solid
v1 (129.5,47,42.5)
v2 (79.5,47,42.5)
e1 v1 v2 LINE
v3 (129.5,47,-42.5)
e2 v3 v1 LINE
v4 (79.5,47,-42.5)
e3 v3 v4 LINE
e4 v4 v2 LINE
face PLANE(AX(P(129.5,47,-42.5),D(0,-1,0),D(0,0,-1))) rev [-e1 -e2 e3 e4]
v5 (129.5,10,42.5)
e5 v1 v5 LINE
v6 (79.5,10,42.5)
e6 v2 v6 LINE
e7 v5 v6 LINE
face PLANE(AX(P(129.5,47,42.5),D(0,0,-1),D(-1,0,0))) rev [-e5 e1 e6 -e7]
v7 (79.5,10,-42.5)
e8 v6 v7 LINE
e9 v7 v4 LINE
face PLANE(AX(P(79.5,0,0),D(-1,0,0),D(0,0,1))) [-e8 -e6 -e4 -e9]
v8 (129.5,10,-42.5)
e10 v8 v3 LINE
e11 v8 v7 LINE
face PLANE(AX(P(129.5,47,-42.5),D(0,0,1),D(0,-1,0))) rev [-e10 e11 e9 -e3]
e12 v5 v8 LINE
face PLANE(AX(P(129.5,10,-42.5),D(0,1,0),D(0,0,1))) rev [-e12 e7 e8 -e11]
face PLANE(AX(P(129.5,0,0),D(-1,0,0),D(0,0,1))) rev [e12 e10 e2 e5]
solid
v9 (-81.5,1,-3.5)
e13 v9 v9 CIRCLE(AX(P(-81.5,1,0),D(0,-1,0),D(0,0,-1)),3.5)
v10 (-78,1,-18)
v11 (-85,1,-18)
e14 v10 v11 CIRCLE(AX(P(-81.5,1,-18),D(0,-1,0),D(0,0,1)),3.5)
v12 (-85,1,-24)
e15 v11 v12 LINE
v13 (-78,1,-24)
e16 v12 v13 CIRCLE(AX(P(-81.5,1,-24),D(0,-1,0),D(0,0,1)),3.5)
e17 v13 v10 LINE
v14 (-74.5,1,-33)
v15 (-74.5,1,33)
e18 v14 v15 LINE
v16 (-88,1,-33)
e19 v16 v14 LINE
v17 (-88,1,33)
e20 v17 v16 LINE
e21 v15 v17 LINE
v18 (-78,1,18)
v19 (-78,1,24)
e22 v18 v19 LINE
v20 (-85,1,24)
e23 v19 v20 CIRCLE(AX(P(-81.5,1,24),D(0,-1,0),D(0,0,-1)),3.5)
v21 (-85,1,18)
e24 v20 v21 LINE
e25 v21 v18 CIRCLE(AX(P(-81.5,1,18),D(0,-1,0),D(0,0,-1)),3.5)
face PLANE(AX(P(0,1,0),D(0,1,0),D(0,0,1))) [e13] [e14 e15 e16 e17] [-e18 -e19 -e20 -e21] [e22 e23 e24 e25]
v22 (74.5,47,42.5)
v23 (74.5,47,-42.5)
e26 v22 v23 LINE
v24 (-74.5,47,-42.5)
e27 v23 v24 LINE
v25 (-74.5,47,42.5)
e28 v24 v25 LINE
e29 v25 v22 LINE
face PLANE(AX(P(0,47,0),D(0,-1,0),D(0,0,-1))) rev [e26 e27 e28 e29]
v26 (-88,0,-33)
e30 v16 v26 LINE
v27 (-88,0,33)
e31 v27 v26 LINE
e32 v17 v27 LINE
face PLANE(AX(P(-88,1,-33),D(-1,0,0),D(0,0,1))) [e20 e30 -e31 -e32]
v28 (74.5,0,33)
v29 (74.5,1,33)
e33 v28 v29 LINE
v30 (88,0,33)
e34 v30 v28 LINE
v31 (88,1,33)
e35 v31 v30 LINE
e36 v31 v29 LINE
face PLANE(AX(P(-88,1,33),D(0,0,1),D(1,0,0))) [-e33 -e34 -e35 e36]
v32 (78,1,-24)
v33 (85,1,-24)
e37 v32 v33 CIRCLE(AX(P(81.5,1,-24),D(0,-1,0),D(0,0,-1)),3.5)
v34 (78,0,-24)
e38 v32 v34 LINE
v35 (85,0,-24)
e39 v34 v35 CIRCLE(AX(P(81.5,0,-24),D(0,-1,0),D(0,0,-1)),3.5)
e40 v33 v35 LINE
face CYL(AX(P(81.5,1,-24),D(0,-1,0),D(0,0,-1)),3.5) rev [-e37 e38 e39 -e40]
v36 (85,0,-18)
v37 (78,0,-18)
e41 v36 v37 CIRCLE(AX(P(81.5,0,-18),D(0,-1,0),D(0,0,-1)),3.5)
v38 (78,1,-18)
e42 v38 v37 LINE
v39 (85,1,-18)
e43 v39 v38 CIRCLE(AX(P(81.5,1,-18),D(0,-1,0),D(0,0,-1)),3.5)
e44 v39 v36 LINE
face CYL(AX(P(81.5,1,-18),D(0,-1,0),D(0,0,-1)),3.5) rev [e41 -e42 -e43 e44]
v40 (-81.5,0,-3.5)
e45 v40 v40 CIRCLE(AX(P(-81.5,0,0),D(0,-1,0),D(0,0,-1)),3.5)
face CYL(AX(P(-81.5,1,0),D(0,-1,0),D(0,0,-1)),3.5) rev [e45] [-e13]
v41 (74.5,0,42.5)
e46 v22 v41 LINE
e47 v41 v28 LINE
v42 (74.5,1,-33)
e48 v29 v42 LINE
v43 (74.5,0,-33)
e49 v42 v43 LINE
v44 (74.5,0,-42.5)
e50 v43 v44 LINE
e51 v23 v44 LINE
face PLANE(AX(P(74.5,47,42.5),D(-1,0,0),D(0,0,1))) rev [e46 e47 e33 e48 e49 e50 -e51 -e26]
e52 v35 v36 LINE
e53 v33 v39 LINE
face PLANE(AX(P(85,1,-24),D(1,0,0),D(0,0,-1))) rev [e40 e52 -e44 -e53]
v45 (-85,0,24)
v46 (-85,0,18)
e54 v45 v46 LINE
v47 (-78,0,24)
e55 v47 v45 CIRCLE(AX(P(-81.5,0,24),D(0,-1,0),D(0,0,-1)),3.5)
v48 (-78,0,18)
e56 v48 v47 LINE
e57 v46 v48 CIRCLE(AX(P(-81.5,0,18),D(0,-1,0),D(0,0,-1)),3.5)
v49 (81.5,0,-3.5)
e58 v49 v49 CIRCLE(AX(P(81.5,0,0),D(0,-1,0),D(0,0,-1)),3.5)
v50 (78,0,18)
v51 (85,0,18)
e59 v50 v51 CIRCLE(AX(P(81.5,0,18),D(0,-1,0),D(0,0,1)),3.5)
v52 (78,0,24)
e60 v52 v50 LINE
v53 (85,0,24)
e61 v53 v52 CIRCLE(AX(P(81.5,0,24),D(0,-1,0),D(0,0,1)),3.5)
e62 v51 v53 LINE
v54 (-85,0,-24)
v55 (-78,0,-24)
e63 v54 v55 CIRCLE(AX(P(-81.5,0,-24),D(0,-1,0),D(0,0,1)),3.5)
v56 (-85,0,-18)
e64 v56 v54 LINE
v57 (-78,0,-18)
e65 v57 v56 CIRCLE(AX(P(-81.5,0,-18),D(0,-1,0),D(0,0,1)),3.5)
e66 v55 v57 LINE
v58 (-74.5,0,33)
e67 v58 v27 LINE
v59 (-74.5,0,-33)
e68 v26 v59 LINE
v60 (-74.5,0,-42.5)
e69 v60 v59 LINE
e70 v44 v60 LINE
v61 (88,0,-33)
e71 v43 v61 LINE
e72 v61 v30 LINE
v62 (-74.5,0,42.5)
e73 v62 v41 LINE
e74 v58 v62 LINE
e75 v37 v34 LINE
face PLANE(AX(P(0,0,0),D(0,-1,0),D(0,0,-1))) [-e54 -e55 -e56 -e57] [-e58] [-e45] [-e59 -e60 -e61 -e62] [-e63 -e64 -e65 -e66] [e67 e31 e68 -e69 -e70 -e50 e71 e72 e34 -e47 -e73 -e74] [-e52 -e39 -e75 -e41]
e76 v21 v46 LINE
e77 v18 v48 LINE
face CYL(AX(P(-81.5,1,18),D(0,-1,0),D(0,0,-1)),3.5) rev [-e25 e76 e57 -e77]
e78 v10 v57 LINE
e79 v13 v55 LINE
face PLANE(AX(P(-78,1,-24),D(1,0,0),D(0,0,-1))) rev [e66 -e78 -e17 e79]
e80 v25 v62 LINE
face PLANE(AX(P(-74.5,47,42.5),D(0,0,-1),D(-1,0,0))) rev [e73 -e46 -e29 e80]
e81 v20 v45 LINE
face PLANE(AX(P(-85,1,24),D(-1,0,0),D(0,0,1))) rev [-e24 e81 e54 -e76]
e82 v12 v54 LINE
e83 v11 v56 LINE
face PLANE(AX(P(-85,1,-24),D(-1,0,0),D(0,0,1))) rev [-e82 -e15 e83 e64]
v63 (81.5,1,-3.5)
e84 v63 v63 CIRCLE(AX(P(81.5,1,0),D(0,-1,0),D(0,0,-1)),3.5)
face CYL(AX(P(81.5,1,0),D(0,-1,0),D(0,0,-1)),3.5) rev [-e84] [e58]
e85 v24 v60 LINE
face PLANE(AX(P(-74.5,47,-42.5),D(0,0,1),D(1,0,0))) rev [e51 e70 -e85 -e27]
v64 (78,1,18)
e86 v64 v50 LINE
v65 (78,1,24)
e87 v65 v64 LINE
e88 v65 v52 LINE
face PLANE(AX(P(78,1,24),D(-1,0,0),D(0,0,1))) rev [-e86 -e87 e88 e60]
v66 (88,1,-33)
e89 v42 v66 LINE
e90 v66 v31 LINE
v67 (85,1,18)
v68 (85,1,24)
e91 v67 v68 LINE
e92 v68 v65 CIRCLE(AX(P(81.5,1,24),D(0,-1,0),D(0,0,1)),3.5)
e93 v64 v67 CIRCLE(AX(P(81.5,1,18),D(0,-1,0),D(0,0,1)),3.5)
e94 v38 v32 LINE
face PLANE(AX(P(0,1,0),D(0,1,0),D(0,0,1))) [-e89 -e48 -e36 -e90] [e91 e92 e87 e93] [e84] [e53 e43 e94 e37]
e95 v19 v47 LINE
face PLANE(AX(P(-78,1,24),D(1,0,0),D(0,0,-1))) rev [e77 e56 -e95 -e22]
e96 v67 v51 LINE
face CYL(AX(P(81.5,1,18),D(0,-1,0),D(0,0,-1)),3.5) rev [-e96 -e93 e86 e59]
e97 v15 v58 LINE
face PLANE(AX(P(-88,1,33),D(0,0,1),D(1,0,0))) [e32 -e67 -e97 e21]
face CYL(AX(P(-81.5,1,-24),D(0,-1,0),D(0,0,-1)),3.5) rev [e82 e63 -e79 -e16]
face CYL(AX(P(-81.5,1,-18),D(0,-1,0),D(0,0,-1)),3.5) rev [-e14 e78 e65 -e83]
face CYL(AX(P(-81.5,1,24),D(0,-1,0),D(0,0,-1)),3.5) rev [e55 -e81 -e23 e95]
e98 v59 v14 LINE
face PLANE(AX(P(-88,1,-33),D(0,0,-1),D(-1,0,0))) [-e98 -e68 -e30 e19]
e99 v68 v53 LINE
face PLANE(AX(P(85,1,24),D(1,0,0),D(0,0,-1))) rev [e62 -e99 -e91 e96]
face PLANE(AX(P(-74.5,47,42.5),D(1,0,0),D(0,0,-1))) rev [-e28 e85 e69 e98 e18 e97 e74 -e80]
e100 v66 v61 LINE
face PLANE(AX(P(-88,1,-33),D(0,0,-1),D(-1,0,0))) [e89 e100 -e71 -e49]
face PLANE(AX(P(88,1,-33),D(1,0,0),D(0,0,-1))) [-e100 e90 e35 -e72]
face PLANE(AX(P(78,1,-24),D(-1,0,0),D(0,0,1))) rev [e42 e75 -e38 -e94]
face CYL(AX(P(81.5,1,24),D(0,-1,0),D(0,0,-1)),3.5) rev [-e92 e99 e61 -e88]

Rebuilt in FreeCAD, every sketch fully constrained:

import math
import FreeCAD as App
import Part
import Sketcher
Q = App.Units.Quantity


def add_polygon(sketch, points):
    """Adds a closed chain of lines whose ends are joined by coincident constraints."""
    first, n = sketch.GeometryCount, len(points)
    for a, b in zip(points, points[1:] + points[:1]):
        sketch.addGeometry(Part.LineSegment(App.Vector(*a, 0), App.Vector(*b, 0)), False)
    for i in range(n):
        sketch.addConstraint(Sketcher.Constraint("Coincident", first + i, 2, first + (i + 1) % n, 1))

doc = App.newDocument("Part")
body = doc.addObject("PartDesign::Body", "Body")

sketch1 = body.newObject("Sketcher::SketchObject", "Sketch")
sketch1.AttachmentSupport = (doc.getObject("XZ_Plane"), [""])
sketch1.MapMode = "FlatFace"
add_polygon(sketch1, [(-74, -42), (-74, 42), (74, 42), (74, -42)])
sketch1.addConstraint([
    Sketcher.Constraint("Vertical", 0),
    Sketcher.Constraint("Horizontal", 1),
    Sketcher.Constraint("Vertical", 2),
    Sketcher.Constraint("Horizontal", 3),
    Sketcher.Constraint("Symmetric", 0, 2, 2, 2, -1, 1),
    Sketcher.Constraint("DistanceX", 1, 1, 1, 2, Q("149 mm")),
    Sketcher.Constraint("DistanceY", 0, 1, 0, 2, Q("85 mm")),
])
pad1 = body.newObject("PartDesign::Pad", "Pad")
pad1.Profile = sketch1
pad1.Length = 47
pad1.Reversed = True

sketch2 = body.newObject("Sketcher::SketchObject", "Sketch001")
sketch2.AttachmentSupport = (doc.getObject("XZ_Plane"), [""])
sketch2.MapMode = "FlatFace"
add_polygon(sketch2, [(-88, 33), (-88, -33), (88, -33), (88, 33)])
sketch2.addGeometry(Part.LineSegment(App.Vector(-78, -18, 0), App.Vector(-78, -24, 0)), False)
sketch2.addGeometry(Part.ArcOfCircle(Part.Circle(App.Vector(-81.5, -24, 0), App.Vector(0, 0, 1), 3.5), math.radians(180), math.radians(360)), False)
sketch2.addGeometry(Part.LineSegment(App.Vector(-85, -24, 0), App.Vector(-85, -18, 0)), False)
sketch2.addGeometry(Part.ArcOfCircle(Part.Circle(App.Vector(-81.5, -18, 0), App.Vector(0, 0, 1), 3.5), math.radians(0), math.radians(180)), False)
sketch2.addGeometry(Part.ArcOfCircle(Part.Circle(App.Vector(81.5, -24, 0), App.Vector(0, 0, 1), 3.5), math.radians(180), math.radians(360)), False)
sketch2.addGeometry(Part.LineSegment(App.Vector(78, -24, 0), App.Vector(78, -18, 0)), False)
sketch2.addGeometry(Part.ArcOfCircle(Part.Circle(App.Vector(81.5, -18, 0), App.Vector(0, 0, 1), 3.5), math.radians(0), math.radians(180)), False)
sketch2.addGeometry(Part.LineSegment(App.Vector(85, -18, 0), App.Vector(85, -24, 0)), False)
sketch2.addGeometry(Part.Circle(App.Vector(-81.5, 0, 0), App.Vector(0, 0, 1), 3.5), False)
sketch2.addGeometry(Part.ArcOfCircle(Part.Circle(App.Vector(-81.5, 24, 0), App.Vector(0, 0, 1), 3.5), math.radians(0), math.radians(180)), False)
sketch2.addGeometry(Part.LineSegment(App.Vector(-78, 24, 0), App.Vector(-78, 18, 0)), False)
sketch2.addGeometry(Part.ArcOfCircle(Part.Circle(App.Vector(-81.5, 18, 0), App.Vector(0, 0, 1), 3.5), math.radians(180), math.radians(360)), False)
sketch2.addGeometry(Part.LineSegment(App.Vector(-85, 18, 0), App.Vector(-85, 24, 0)), False)
sketch2.addGeometry(Part.Circle(App.Vector(81.5, 0, 0), App.Vector(0, 0, 1), 3.5), False)
sketch2.addGeometry(Part.LineSegment(App.Vector(78, 18, 0), App.Vector(78, 24, 0)), False)
sketch2.addGeometry(Part.ArcOfCircle(Part.Circle(App.Vector(81.5, 24, 0), App.Vector(0, 0, 1), 3.5), math.radians(0), math.radians(180)), False)
sketch2.addGeometry(Part.LineSegment(App.Vector(85, 24, 0), App.Vector(85, 18, 0)), False)
sketch2.addGeometry(Part.ArcOfCircle(Part.Circle(App.Vector(81.5, 18, 0), App.Vector(0, 0, 1), 3.5), math.radians(180), math.radians(360)), False)
sketch2.addConstraint([
    Sketcher.Constraint("Tangent", 4, 2, 5, 2),
    Sketcher.Constraint("Tangent", 5, 1, 6, 1),
    Sketcher.Constraint("Tangent", 6, 2, 7, 2),
    Sketcher.Constraint("Tangent", 7, 1, 4, 1),
    Sketcher.Constraint("Tangent", 8, 1, 9, 1),
    Sketcher.Constraint("Tangent", 9, 2, 10, 2),
    Sketcher.Constraint("Tangent", 10, 1, 11, 1),
    Sketcher.Constraint("Tangent", 11, 2, 8, 2),
    Sketcher.Constraint("Tangent", 13, 1, 14, 1),
    Sketcher.Constraint("Tangent", 14, 2, 15, 2),
    Sketcher.Constraint("Tangent", 15, 1, 16, 1),
    Sketcher.Constraint("Tangent", 16, 2, 13, 2),
    Sketcher.Constraint("Tangent", 18, 2, 19, 2),
    Sketcher.Constraint("Tangent", 19, 1, 20, 1),
    Sketcher.Constraint("Tangent", 20, 2, 21, 2),
    Sketcher.Constraint("Tangent", 21, 1, 18, 1),
    Sketcher.Constraint("Vertical", 0),
    Sketcher.Constraint("Horizontal", 1),
    Sketcher.Constraint("Vertical", 2),
    Sketcher.Constraint("Horizontal", 3),
    Sketcher.Constraint("Vertical", 4),
    Sketcher.Constraint("Vertical", 6),
    Sketcher.Constraint("Vertical", 9),
    Sketcher.Constraint("Vertical", 11),
    Sketcher.Constraint("Vertical", 14),
    Sketcher.Constraint("Vertical", 16),
    Sketcher.Constraint("Vertical", 18),
    Sketcher.Constraint("Vertical", 20),
    Sketcher.Constraint("Equal", 7, 8),
    Sketcher.Constraint("Equal", 10, 12),
    Sketcher.Constraint("Equal", 12, 13),
    Sketcher.Constraint("Equal", 15, 17),
    Sketcher.Constraint("Equal", 17, 19),
    Sketcher.Constraint("Symmetric", 8, 3, 13, 3, -1, 1),
    Sketcher.Constraint("Symmetric", 12, 3, 17, 3, -1, 1),
    Sketcher.Constraint("Symmetric", 5, 3, 19, 3, -1, 1),
    Sketcher.Constraint("Symmetric", 0, 2, 2, 2, -1, 1),
    Sketcher.Constraint("Symmetric", 5, 3, 8, 3, -2),
    Sketcher.Constraint("PointOnObject", 12, 3, -1),
    Sketcher.Constraint("Horizontal", 7, 3, 10, 3),
    Sketcher.Constraint("Horizontal", 15, 3, 21, 3),
    Sketcher.Constraint("Vertical", 7, 3, 12, 3),
    Sketcher.Constraint("Equal", 11, 14),
    Sketcher.Constraint("Diameter", 12, Q("7 mm")),
    Sketcher.Constraint("DistanceX", 1, 1, 1, 2, Q("176 mm")),
    Sketcher.Constraint("DistanceY", 0, 2, 0, 1, Q("66 mm")),
    Sketcher.Constraint("DistanceY", 4, 2, 4, 1, Q("6 mm")),
    Sketcher.Constraint("DistanceY", 5, 3, -1, 1, Q("24 mm")),
    Sketcher.Constraint("DistanceX", 4, 2, -1, 1, Q("78 mm")),
])
pad2 = body.newObject("PartDesign::Pad", "Pad001")
pad2.Profile = sketch2
pad2.Length = 1
pad2.Reversed = True
body2 = doc.addObject("PartDesign::Body", "Body001")

sketch3 = body2.newObject("Sketcher::SketchObject", "Sketch002")
sketch3.AttachmentSupport = (doc.getObject("YZ_Plane001"), [""])
sketch3.MapMode = "FlatFace"
sketch3.AttachmentOffset = App.Placement(App.Vector(0, 0, 79.5), App.Rotation())
add_polygon(sketch3, [(47, 42), (10, 42), (10, -42), (47, -42)])
sketch3.addConstraint([
    Sketcher.Constraint("Horizontal", 0),
    Sketcher.Constraint("Vertical", 1),
    Sketcher.Constraint("Horizontal", 2),
    Sketcher.Constraint("Vertical", 3),
    Sketcher.Constraint("DistanceX", 0, 2, 0, 1, Q("37 mm")),
    Sketcher.Constraint("DistanceY", 1, 2, 1, 1, Q("85 mm")),
    Sketcher.Constraint("DistanceX", -1, 1, 0, 2, Q("10 mm")),
    Sketcher.Constraint("DistanceY", -1, 1, 0, 2, Q("42.5 mm")),
])
pad3 = body2.newObject("PartDesign::Pad", "Pad002")
pad3.Profile = sketch3
pad3.Length = 50

doc.recompute()
